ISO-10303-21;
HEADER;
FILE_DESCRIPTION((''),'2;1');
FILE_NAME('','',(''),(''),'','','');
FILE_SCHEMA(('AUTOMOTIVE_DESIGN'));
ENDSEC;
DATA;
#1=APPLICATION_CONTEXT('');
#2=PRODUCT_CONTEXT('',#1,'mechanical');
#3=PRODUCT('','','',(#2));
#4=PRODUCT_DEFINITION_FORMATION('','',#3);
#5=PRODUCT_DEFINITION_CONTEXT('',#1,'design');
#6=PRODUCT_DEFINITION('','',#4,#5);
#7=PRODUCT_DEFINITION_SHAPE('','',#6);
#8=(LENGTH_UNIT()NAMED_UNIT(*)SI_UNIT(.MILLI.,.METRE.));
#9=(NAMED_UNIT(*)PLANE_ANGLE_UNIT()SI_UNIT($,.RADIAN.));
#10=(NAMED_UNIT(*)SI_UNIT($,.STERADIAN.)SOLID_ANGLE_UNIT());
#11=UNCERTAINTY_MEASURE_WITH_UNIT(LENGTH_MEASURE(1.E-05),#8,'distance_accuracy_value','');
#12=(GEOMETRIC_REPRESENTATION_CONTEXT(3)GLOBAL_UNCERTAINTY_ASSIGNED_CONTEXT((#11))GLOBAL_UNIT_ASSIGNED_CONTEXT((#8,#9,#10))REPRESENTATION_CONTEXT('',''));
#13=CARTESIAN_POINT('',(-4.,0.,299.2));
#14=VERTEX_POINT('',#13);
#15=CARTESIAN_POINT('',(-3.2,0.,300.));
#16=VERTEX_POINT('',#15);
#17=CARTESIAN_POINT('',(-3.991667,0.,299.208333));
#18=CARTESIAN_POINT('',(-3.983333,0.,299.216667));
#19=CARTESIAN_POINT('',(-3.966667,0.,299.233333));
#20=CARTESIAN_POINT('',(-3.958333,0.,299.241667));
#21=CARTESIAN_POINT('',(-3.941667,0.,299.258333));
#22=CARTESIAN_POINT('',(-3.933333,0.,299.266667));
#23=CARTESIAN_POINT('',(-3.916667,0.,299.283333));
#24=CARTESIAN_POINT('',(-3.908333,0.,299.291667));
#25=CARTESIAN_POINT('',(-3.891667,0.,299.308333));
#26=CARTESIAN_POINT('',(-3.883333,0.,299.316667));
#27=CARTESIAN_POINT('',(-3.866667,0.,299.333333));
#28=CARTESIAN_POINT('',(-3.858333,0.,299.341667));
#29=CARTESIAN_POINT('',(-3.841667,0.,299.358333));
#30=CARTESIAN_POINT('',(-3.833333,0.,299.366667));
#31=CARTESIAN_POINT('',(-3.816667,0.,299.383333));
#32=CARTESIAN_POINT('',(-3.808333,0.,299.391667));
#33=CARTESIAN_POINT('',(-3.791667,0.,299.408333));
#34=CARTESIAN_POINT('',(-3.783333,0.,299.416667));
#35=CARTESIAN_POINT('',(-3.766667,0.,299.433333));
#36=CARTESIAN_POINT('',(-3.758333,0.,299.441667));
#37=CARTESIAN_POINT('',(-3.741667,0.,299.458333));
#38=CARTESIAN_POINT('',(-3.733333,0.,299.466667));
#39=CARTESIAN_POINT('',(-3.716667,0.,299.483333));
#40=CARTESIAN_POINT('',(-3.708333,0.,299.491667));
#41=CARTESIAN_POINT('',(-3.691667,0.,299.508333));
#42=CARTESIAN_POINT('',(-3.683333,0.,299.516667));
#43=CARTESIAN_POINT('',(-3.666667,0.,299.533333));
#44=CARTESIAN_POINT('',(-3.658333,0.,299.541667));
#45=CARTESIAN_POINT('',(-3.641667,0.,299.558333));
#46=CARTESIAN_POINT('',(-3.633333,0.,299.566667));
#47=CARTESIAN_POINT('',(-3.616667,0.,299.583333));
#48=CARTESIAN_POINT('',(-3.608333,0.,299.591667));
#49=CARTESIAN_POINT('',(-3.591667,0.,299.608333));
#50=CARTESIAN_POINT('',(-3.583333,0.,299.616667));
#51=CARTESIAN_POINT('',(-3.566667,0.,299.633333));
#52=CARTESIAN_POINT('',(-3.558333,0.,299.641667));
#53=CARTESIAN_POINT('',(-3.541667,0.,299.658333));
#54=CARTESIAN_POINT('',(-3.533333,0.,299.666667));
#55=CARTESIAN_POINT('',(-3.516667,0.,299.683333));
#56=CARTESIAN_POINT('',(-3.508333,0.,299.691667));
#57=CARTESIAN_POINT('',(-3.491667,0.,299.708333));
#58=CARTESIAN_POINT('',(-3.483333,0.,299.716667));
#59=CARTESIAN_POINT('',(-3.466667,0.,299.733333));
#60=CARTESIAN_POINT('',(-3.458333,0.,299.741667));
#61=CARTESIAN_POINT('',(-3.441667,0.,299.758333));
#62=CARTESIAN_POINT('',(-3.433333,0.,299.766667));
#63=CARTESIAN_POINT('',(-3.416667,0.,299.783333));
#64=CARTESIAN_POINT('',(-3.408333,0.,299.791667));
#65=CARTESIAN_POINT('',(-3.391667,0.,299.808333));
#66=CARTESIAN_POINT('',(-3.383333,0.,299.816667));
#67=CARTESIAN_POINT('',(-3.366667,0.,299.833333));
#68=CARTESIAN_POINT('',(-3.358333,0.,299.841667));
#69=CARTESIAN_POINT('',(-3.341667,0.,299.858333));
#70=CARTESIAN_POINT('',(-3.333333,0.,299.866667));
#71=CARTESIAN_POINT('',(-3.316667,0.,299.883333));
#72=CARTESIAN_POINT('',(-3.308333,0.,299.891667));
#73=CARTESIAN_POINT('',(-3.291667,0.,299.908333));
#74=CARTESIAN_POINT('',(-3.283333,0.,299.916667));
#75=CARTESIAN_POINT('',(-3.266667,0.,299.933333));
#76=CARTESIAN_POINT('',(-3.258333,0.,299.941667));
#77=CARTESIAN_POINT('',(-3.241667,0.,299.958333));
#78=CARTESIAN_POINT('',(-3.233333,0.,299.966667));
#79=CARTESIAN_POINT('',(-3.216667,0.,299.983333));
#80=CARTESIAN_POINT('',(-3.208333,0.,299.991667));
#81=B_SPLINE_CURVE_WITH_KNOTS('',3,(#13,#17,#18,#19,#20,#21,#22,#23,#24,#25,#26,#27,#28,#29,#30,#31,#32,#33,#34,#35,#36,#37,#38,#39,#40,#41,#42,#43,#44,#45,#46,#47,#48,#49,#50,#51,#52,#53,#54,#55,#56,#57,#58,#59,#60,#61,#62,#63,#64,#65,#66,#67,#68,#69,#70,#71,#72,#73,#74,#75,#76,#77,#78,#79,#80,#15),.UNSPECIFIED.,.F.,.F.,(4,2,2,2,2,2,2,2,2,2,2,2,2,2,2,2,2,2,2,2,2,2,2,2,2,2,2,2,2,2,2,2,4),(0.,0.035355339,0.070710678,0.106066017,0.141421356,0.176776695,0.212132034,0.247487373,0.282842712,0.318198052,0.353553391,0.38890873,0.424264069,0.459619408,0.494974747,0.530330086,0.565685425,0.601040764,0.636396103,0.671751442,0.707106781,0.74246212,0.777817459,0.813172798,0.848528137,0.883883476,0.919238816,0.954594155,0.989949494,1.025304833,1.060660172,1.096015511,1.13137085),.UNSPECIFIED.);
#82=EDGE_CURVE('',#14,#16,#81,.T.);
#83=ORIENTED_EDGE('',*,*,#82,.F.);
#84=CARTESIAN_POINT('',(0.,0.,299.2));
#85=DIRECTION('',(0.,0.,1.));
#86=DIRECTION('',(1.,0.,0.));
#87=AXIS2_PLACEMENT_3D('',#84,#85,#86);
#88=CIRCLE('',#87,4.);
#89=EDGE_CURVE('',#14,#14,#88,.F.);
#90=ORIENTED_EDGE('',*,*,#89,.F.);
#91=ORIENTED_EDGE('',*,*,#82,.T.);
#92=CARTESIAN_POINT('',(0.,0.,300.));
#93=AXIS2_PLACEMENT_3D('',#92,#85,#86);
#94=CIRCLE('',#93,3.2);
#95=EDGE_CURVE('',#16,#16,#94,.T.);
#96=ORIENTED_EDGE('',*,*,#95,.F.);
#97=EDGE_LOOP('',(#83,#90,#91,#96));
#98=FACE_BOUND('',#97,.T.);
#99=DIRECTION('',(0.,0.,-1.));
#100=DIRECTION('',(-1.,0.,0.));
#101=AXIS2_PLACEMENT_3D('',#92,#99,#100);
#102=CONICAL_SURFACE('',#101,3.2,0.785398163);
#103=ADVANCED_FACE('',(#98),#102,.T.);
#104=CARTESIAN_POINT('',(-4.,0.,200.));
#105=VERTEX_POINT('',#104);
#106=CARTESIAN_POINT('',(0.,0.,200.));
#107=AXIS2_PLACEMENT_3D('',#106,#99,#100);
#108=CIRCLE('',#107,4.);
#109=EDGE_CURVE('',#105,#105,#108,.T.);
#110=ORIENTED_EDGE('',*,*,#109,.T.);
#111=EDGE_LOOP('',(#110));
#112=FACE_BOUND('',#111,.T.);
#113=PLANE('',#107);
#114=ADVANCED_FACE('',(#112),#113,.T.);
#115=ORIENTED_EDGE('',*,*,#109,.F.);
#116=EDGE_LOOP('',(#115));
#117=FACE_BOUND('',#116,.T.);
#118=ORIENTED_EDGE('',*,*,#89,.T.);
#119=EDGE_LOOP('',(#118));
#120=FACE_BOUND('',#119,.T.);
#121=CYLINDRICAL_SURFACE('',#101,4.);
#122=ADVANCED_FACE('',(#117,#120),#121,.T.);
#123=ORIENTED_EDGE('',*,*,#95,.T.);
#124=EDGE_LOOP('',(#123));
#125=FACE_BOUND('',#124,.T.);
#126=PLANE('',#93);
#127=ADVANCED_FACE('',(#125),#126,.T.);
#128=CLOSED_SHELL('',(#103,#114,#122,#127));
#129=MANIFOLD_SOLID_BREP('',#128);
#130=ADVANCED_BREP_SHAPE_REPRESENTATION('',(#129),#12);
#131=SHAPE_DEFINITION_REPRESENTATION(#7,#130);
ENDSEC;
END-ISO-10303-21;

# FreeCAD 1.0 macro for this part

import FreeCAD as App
import Part
import Sketcher
from FreeCAD import Vector


def edges_at(feature, points):
    """Names of the edges that pass closest to the given points."""
    edges = feature.Shape.Edges
    near = lambda p: min(range(len(edges)), key=lambda i: edges[i].distToShape(Part.Vertex(*p))[0])
    return sorted({f"Edge{near(p) + 1}" for p in points})

doc = App.newDocument("Part")
body = doc.addObject("PartDesign::Body", "Body")

sketch1 = body.newObject("Sketcher::SketchObject", "Sketch")
sketch1.AttachmentSupport = (doc.getObject("XY_Plane"), [""])
sketch1.MapMode = "FlatFace"
sketch1.addGeometry(Part.Circle(Vector(0, 0, 0), Vector(0, 0, 1), 4), False)
sketch1.addConstraint(Sketcher.Constraint("Coincident", 0, 3, -1, 1))
sketch1.addConstraint(Sketcher.Constraint("Diameter", 0, 8.0))
pad1 = body.newObject("PartDesign::Pad", "Pad")
pad1.Profile = sketch1
pad1.Length = 600
pad1.Midplane = True
doc.recompute()

chamfer = body.newObject("PartDesign::Chamfer", "Chamfer")
chamfer.Base = (pad1, edges_at(pad1, [(-4, 0, -300), (-4, 0, 300)]))
chamfer.Size = 0.8

sketch2 = body.newObject("Sketcher::SketchObject", "Sketch001")
sketch2.AttachmentSupport = (doc.getObject("XY_Plane"), [""])
sketch2.MapMode = "FlatFace"
sketch2.AttachmentOffset = App.Placement(Vector(0, 0, -300), App.Rotation())
sketch2.addGeometry(Part.Circle(Vector(0, 0, 0), Vector(0, 0, 1), 13), False)
sketch2.addConstraint(Sketcher.Constraint("Coincident", 0, 3, -1, 1))
sketch2.addConstraint(Sketcher.Constraint("Diameter", 0, 25.513643))
pocket1 = body.newObject("PartDesign::Pocket", "Pocket")
pocket1.Profile = sketch2
pocket1.Length = 500
pocket1.Reversed = True

doc.recompute()
